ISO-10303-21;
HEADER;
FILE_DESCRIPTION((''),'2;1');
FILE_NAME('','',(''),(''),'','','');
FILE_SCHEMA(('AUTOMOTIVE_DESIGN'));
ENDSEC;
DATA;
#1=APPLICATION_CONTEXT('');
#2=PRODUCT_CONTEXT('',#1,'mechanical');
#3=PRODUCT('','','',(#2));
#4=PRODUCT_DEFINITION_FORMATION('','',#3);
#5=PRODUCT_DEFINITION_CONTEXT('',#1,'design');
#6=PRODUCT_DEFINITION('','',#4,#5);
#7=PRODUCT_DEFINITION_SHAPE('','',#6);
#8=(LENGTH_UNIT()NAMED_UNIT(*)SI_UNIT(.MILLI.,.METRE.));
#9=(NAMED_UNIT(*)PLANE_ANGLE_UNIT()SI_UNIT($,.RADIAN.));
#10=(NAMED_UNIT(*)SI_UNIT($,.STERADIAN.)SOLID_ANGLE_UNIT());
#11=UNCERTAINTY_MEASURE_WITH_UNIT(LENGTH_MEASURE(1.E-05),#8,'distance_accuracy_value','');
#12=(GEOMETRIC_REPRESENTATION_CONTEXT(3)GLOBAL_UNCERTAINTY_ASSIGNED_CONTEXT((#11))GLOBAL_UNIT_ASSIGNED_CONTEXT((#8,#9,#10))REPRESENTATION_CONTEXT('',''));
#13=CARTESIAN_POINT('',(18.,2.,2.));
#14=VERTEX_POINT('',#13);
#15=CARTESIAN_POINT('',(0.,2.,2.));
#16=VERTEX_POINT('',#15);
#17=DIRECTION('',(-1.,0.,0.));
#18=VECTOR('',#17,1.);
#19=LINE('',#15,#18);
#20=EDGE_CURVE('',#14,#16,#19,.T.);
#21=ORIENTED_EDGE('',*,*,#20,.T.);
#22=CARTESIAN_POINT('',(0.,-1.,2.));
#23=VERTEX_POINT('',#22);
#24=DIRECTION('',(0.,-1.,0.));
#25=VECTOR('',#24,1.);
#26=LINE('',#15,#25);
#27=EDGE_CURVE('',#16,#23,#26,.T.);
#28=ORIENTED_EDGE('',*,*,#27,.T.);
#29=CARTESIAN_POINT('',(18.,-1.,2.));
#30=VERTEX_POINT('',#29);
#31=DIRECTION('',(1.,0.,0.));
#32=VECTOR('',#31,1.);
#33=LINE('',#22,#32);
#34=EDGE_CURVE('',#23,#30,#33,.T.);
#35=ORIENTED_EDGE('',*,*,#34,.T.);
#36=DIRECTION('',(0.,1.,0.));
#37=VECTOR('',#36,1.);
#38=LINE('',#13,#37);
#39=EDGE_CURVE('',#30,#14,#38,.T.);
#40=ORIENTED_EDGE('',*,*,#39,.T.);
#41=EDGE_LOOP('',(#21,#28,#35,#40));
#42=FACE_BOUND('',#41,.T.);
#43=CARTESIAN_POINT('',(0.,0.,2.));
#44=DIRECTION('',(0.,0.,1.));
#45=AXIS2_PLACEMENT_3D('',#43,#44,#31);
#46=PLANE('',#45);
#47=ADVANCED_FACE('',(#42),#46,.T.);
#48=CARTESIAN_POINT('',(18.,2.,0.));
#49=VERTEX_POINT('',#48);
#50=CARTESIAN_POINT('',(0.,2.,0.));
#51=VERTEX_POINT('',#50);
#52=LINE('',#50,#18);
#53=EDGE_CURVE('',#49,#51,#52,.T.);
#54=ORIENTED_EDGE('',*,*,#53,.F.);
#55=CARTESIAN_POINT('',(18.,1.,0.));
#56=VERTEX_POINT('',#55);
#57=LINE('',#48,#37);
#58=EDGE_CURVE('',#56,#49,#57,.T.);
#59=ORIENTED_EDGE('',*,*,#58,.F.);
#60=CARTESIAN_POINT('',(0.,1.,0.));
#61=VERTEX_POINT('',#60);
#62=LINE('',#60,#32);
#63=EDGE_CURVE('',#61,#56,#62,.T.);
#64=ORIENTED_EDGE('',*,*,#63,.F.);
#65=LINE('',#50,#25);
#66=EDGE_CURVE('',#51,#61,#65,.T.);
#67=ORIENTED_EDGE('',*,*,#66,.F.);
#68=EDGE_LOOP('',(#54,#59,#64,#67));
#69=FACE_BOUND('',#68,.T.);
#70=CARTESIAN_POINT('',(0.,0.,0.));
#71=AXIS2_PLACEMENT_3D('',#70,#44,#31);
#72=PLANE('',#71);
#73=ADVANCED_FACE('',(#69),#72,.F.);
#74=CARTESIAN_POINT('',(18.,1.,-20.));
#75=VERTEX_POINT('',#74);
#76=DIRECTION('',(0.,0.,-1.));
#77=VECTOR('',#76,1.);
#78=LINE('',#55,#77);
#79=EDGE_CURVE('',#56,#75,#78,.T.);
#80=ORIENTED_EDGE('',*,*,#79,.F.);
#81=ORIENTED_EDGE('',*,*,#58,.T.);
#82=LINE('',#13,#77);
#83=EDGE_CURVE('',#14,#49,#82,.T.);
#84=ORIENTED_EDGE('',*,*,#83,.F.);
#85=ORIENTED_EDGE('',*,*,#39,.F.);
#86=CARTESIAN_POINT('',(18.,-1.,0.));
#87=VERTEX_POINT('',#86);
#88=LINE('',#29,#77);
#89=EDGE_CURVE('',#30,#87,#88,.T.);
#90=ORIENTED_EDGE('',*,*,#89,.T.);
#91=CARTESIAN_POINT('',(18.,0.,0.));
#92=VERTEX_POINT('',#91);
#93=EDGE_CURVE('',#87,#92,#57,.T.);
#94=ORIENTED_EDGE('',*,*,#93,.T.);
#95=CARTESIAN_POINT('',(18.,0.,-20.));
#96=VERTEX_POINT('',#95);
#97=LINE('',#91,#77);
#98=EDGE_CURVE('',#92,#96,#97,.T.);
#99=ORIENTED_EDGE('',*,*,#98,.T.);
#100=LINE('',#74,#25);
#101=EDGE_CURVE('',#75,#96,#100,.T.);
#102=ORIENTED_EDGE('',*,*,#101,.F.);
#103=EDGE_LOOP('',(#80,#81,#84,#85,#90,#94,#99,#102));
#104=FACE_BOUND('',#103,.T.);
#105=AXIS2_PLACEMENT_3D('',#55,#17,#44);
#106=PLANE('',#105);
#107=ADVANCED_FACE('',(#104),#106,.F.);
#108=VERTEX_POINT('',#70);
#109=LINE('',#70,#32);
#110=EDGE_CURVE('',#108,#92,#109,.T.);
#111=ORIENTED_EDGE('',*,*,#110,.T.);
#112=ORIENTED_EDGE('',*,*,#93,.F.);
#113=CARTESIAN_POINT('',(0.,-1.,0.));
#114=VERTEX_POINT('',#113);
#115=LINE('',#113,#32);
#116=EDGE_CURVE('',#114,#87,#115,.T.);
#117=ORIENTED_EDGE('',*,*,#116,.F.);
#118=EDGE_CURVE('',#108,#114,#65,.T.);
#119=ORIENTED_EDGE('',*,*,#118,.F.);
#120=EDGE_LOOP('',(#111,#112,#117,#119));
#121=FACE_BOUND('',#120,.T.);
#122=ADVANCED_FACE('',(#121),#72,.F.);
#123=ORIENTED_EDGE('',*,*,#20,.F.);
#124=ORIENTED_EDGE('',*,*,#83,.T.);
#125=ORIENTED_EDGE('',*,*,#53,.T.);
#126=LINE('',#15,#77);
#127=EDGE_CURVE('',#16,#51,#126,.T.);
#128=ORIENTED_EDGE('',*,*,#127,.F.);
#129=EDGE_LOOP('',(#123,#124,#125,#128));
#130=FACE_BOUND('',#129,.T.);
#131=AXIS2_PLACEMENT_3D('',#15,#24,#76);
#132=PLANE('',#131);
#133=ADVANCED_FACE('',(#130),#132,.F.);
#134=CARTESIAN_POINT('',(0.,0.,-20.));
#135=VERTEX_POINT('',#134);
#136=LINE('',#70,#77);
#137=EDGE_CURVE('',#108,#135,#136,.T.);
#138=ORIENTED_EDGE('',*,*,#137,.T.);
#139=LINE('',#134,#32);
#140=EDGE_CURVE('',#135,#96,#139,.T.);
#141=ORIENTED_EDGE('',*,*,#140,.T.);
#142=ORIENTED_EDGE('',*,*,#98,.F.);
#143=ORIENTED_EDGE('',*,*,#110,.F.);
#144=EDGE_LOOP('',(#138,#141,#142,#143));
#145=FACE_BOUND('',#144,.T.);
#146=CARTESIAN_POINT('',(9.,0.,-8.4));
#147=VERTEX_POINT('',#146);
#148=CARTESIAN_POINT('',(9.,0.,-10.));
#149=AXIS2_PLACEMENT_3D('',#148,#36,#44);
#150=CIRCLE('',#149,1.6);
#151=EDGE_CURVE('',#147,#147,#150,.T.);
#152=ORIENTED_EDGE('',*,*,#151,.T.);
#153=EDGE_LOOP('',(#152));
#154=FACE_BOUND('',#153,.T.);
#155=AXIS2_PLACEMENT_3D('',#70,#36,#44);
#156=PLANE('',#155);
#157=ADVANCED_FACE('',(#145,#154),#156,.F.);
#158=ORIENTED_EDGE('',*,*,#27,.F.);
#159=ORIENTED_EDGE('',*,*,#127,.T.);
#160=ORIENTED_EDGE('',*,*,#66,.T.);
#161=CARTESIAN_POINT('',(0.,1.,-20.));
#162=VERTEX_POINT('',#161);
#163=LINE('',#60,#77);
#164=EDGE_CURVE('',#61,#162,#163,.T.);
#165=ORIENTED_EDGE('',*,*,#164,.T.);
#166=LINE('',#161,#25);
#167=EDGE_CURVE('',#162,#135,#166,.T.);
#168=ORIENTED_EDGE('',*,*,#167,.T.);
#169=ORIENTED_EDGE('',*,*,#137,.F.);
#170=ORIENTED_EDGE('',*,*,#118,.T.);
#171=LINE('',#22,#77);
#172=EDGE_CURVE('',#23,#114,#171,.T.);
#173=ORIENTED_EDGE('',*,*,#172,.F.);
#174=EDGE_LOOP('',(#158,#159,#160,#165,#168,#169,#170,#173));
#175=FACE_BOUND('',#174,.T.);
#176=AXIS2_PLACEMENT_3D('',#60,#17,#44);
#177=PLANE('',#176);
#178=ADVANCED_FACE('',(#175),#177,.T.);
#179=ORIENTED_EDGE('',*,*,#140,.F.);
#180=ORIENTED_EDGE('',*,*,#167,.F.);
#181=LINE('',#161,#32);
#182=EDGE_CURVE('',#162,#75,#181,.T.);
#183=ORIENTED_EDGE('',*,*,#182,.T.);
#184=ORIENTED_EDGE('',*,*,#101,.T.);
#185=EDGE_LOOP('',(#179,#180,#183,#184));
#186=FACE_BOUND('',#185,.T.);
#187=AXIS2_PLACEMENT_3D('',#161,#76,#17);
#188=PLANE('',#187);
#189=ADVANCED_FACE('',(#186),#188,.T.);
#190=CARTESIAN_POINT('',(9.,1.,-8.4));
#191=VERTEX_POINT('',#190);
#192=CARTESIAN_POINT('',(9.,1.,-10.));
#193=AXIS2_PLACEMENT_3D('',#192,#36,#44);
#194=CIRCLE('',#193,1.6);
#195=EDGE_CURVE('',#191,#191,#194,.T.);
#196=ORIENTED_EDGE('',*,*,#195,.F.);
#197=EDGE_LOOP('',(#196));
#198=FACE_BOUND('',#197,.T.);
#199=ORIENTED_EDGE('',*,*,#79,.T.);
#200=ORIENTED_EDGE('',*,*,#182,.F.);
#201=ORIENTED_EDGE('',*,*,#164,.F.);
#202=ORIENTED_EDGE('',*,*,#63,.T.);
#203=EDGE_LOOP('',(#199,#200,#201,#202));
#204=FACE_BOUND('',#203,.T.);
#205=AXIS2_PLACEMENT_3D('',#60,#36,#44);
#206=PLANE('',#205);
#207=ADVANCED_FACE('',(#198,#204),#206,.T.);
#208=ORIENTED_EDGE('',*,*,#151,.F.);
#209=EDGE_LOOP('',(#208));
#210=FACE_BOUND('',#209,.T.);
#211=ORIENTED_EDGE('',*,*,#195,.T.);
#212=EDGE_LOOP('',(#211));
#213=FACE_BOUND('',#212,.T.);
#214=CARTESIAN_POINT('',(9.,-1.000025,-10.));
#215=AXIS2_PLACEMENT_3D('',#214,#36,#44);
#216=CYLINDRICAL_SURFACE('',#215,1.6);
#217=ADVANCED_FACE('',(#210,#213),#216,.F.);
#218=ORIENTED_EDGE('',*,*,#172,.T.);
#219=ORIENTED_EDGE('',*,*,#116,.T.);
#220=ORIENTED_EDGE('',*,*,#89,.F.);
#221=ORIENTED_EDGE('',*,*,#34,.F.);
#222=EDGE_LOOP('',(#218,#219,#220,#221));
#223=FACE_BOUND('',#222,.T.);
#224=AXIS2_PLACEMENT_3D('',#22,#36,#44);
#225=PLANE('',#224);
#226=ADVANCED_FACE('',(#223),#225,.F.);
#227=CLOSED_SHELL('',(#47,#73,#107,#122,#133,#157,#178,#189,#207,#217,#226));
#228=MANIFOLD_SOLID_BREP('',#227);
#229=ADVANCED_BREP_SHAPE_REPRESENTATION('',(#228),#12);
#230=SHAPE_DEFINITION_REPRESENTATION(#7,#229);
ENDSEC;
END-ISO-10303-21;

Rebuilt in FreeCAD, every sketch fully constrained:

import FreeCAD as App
import Part
import Sketcher
Q = App.Units.Quantity


def add_polygon(sketch, points):
    """Adds a closed chain of lines whose ends are joined by coincident constraints."""
    first, n = sketch.GeometryCount, len(points)
    for a, b in zip(points, points[1:] + points[:1]):
        sketch.addGeometry(Part.LineSegment(App.Vector(*a, 0), App.Vector(*b, 0)), False)
    for i in range(n):
        sketch.addConstraint(Sketcher.Constraint("Coincident", first + i, 2, first + (i + 1) % n, 1))

doc = App.newDocument("Part")
params = doc.addObject("Spreadsheet::Sheet", "Params")
for row, (alias, value) in enumerate([
    ("sketch1_width", "18 mm"),
    ("sketch1_height", "20 mm"),
    ("pad1_length", "1 mm"),
    ("sketch2_width", "18 mm"),
    ("sketch2_height", "3 mm"),
    ("pad2_length", "2 mm"),
    ("sketch3_diameter", "3.2 mm"),
], start=1):
    params.set(f"A{row}", alias)
    params.set(f"B{row}", "=" + value)
    params.setAlias(f"B{row}", alias)

body = doc.addObject("PartDesign::Body", "Body")

sketch1 = body.newObject("Sketcher::SketchObject", "Sketch")
sketch1.AttachmentSupport = (doc.getObject("XZ_Plane"), [""])
sketch1.MapMode = "FlatFace"
add_polygon(sketch1, [(0, -20), (0, 0), (18, 0), (18, -20)])
sketch1.addConstraint(Sketcher.Constraint("Vertical", 0))
sketch1.addConstraint(Sketcher.Constraint("Horizontal", 1))
sketch1.addConstraint(Sketcher.Constraint("Vertical", 2))
sketch1.addConstraint(Sketcher.Constraint("Horizontal", 3))
sketch1.addConstraint(Sketcher.Constraint("Coincident", 0, 2, -1, 1))
sketch1.addConstraint(Sketcher.Constraint("DistanceX", 1, 1, 1, 2, Q("18 mm")))
sketch1.addConstraint(Sketcher.Constraint("DistanceY", 0, 1, 0, 2, Q("20 mm")))
sketch1.setExpression("Constraints[9]", "Params.sketch1_width")
sketch1.setExpression("Constraints[10]", "Params.sketch1_height")
pad1 = body.newObject("PartDesign::Pad", "Pad")
pad1.Profile = sketch1
pad1.setExpression("Length", "Params.pad1_length")
pad1.Reversed = True

sketch2 = body.newObject("Sketcher::SketchObject", "Sketch001")
sketch2.AttachmentSupport = (doc.getObject("XY_Plane"), [""])
sketch2.MapMode = "FlatFace"
add_polygon(sketch2, [(0, 2), (0, -1), (18, -1), (18, 2)])
sketch2.addConstraint(Sketcher.Constraint("Vertical", 0))
sketch2.addConstraint(Sketcher.Constraint("Horizontal", 1))
sketch2.addConstraint(Sketcher.Constraint("Vertical", 2))
sketch2.addConstraint(Sketcher.Constraint("Horizontal", 3))
sketch2.addConstraint(Sketcher.Constraint("PointOnObject", 0, 2, -2))
sketch2.addConstraint(Sketcher.Constraint("DistanceX", 1, 1, 1, 2, Q("18 mm")))
sketch2.addConstraint(Sketcher.Constraint("DistanceY", 0, 2, 0, 1, Q("3 mm")))
sketch2.addConstraint(Sketcher.Constraint("DistanceY", 0, 2, -1, 1, Q("1 mm")))
sketch2.setExpression("Constraints[9]", "Params.sketch2_width")
sketch2.setExpression("Constraints[10]", "Params.sketch2_height")
pad2 = body.newObject("PartDesign::Pad", "Pad001")
pad2.Profile = sketch2
pad2.setExpression("Length", "Params.pad2_length")

sketch3 = body.newObject("Sketcher::SketchObject", "Sketch002")
sketch3.AttachmentSupport = (doc.getObject("XZ_Plane"), [""])
sketch3.MapMode = "FlatFace"
sketch3.AttachmentOffset = App.Placement(App.Vector(0, 0, -1), App.Rotation())
sketch3.addGeometry(Part.Circle(App.Vector(9, -10, 0), App.Vector(0, 0, 1), 1.6), False)
sketch3.addConstraint(Sketcher.Constraint("Diameter", 0, Q("3.2 mm")))
sketch3.addConstraint(Sketcher.Constraint("DistanceX", -1, 1, 0, 3, Q("9 mm")))
sketch3.addConstraint(Sketcher.Constraint("DistanceY", 0, 3, -1, 1, Q("10 mm")))
sketch3.setExpression("Constraints[0]", "Params.sketch3_diameter")
pocket1 = body.newObject("PartDesign::Pocket", "Pocket")
pocket1.Profile = sketch3
pocket1.Type = "ThroughAll"
pocket1.Reversed = True

doc.recompute()
